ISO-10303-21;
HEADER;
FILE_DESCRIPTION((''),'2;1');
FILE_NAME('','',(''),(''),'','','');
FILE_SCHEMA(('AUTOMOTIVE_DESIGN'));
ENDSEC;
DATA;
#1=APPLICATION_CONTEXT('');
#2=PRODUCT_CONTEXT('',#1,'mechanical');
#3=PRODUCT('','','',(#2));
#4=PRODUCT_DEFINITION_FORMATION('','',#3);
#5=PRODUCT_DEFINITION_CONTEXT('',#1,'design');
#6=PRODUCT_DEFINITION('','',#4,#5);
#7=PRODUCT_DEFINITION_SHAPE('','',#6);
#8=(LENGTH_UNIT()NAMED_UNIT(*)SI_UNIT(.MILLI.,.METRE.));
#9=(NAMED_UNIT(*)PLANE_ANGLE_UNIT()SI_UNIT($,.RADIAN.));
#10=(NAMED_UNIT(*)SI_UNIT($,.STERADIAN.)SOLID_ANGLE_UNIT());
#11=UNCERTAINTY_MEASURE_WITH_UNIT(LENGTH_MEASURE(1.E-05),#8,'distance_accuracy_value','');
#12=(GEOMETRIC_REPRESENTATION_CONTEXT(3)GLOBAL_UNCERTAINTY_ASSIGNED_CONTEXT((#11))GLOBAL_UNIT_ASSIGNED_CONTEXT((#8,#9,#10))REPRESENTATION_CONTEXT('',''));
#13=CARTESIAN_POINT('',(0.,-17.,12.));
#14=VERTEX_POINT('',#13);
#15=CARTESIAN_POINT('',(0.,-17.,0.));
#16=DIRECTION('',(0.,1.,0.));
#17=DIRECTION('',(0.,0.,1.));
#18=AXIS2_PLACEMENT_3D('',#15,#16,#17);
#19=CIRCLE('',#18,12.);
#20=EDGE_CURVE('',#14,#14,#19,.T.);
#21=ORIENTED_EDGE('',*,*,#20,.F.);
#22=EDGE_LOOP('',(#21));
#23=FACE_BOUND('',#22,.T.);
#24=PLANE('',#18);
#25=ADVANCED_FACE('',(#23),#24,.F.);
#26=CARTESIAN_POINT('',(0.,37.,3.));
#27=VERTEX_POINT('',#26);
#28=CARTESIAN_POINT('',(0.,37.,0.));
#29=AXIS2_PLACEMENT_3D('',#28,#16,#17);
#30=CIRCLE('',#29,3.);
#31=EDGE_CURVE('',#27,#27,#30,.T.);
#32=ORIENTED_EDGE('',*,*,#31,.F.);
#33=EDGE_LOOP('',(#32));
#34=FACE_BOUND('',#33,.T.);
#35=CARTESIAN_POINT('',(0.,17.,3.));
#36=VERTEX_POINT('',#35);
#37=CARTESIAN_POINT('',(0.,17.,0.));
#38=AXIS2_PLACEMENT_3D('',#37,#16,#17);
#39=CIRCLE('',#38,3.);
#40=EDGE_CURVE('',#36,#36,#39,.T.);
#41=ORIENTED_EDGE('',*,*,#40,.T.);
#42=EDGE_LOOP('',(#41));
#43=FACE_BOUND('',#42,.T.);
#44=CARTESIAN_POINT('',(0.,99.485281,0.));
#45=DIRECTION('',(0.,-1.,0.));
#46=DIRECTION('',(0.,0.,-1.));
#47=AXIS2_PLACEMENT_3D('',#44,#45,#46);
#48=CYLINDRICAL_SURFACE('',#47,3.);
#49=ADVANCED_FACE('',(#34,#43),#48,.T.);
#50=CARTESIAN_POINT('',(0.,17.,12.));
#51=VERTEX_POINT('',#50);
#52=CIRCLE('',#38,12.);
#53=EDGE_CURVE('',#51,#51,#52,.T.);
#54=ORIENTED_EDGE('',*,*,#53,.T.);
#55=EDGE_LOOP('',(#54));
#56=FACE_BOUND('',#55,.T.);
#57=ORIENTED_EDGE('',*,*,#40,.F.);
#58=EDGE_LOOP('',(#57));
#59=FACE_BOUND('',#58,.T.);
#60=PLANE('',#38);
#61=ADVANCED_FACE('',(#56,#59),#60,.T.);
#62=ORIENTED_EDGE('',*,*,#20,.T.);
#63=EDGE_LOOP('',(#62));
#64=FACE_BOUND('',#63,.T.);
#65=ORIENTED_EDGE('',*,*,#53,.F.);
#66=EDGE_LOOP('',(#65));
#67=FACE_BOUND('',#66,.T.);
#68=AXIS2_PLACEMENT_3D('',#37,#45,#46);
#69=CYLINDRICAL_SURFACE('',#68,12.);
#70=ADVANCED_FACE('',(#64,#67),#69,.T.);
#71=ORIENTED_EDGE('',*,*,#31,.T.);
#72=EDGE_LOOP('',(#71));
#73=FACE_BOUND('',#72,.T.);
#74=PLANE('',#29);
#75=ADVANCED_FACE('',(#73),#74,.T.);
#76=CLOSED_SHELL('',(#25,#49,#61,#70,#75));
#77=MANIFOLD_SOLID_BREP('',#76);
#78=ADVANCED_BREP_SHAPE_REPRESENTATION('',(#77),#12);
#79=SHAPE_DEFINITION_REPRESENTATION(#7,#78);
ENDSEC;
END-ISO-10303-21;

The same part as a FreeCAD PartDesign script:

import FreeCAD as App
import Part
import Sketcher
from FreeCAD import Vector

doc = App.newDocument("Part")
body = doc.addObject("PartDesign::Body", "Body")

# Sketch on XZ plane
sketch1 = body.newObject("Sketcher::SketchObject", "Sketch")
sketch1.AttachmentSupport = (doc.getObject("XZ_Plane"), [""])
sketch1.MapMode = "FlatFace"
sketch1.addGeometry(Part.Circle(Vector(0, 0, 0), Vector(0, 0, 1), 12), False)
sketch1.addConstraint([
    Sketcher.Constraint("Coincident", 0, 3, -1, 1),
    Sketcher.Constraint("Diameter", 0, 24.0),
])
pad1 = body.newObject("PartDesign::Pad", "Pad")
pad1.Profile = sketch1
pad1.Length = 34
pad1.Midplane = True

# Sketch on XZ plane
sketch2 = body.newObject("Sketcher::SketchObject", "Sketch001")
sketch2.AttachmentSupport = (doc.getObject("XZ_Plane"), [""])
sketch2.MapMode = "FlatFace"
sketch2.AttachmentOffset = App.Placement(Vector(0, 0, -17), App.Rotation())
sketch2.addGeometry(Part.Circle(Vector(0, 0, 0), Vector(0, 0, 1), 3), False)
sketch2.addConstraint([
    Sketcher.Constraint("Coincident", 0, 3, -1, 1),
    Sketcher.Constraint("Diameter", 0, 6.0),
])
pad2 = body.newObject("PartDesign::Pad", "Pad001")
pad2.Profile = sketch2
pad2.Length = 20
pad2.Reversed = True

doc.recompute()
